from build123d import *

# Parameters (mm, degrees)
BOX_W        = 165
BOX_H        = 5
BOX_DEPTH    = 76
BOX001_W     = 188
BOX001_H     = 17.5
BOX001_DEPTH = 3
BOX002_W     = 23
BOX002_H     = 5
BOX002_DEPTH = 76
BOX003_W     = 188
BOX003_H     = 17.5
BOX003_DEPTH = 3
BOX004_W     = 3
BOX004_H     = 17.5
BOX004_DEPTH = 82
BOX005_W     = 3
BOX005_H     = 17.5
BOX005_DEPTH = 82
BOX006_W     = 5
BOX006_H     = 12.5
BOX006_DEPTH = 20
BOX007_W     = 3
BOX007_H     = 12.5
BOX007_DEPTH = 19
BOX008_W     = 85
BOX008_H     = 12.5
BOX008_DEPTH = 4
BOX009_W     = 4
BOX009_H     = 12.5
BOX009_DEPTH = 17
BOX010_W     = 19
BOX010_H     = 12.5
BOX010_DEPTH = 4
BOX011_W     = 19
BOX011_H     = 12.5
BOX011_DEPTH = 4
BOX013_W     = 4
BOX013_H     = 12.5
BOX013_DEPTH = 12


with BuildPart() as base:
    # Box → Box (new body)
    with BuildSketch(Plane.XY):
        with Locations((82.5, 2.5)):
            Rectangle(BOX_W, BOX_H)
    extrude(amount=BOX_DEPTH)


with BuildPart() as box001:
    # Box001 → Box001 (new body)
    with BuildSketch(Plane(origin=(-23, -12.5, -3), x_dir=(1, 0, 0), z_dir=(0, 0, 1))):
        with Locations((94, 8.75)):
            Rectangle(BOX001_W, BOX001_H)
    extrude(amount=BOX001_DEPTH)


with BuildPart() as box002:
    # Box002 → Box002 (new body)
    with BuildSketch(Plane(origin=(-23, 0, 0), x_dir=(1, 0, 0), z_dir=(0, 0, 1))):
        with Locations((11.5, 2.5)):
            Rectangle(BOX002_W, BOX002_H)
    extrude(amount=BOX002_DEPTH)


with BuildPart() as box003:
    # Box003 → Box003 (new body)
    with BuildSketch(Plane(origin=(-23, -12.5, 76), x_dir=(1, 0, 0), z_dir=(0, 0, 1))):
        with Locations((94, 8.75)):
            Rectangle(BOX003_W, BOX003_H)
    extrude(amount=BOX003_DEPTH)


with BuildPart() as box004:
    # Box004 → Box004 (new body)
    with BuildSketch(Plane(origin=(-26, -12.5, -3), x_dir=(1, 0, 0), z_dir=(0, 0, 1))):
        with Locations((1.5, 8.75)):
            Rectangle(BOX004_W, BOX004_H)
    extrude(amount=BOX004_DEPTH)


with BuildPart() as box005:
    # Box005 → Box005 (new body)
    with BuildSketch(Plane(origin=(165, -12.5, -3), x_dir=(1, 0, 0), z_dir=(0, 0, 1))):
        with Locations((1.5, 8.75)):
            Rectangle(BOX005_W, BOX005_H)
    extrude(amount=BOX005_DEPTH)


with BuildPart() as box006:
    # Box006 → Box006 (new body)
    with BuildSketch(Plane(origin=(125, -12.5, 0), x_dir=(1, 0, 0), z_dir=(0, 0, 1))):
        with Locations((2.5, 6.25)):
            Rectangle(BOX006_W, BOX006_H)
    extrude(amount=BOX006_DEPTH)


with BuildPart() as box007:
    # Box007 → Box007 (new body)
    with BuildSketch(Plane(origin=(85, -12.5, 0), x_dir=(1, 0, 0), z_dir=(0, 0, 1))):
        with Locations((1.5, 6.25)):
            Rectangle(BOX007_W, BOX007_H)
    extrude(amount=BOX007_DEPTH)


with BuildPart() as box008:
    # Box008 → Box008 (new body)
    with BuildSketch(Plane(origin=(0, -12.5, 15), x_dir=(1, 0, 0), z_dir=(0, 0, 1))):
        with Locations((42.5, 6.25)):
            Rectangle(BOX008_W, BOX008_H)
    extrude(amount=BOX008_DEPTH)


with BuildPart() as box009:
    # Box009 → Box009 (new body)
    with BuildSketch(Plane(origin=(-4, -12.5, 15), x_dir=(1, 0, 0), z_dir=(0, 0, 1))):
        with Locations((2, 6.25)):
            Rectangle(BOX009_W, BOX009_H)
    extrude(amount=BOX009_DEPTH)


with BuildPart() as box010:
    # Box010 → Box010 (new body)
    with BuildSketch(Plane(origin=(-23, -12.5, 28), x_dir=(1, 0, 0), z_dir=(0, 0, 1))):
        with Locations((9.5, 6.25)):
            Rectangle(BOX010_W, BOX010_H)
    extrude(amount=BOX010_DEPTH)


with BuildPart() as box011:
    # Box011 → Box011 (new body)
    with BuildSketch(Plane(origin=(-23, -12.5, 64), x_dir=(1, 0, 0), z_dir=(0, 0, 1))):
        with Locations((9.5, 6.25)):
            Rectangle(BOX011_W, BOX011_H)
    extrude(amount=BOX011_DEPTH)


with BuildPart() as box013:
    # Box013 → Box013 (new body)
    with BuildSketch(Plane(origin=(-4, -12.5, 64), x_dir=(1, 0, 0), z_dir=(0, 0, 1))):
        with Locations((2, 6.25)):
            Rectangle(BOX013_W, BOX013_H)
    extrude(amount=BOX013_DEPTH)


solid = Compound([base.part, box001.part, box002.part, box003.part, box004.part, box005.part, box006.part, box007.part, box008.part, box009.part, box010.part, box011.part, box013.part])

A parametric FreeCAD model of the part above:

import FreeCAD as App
import Part
import Sketcher

V = App.Vector

doc = App.newDocument("Part")
body = doc.addObject("PartDesign::Body", "Body")

sketch1 = body.newObject("Sketcher::SketchObject", "Sketch")
sketch1.AttachmentSupport = (doc.getObject("XY_Plane"), [""])
sketch1.MapMode = "FlatFace"
sketch1.addGeometry([
    Part.LineSegment(V(0, 5, 0), V(0, 0, 0)),
    Part.LineSegment(V(0, 0, 0), V(165, 0, 0)),
    Part.LineSegment(V(165, 0, 0), V(165, 5, 0)),
    Part.LineSegment(V(165, 5, 0), V(0, 5, 0)),
], False)
sketch1.addConstraint([
    Sketcher.Constraint("Coincident", 0, 2, 1, 1),
    Sketcher.Constraint("Coincident", 1, 2, 2, 1),
    Sketcher.Constraint("Coincident", 2, 2, 3, 1),
    Sketcher.Constraint("Coincident", 3, 2, 0, 1),
    Sketcher.Constraint("Vertical", 0),
    Sketcher.Constraint("Horizontal", 1),
    Sketcher.Constraint("Vertical", 2),
    Sketcher.Constraint("Horizontal", 3),
    Sketcher.Constraint("Coincident", 0, 2, -1, 1),
    Sketcher.Constraint("DistanceX", 1, 1, 1, 2, 165.0),
    Sketcher.Constraint("DistanceY", 0, 2, 0, 1, 5.0),
])
pad1 = body.newObject("PartDesign::Pad", "Pad")
pad1.Profile = sketch1
pad1.Length = 76
body2 = doc.addObject("PartDesign::Body", "Body001")

sketch2 = body2.newObject("Sketcher::SketchObject", "Sketch001")
sketch2.AttachmentSupport = (doc.getObject("XY_Plane001"), [""])
sketch2.MapMode = "FlatFace"
sketch2.AttachmentOffset = App.Placement(V(0, 0, -3), App.Rotation())
sketch2.addGeometry([
    Part.LineSegment(V(-23, 5, 0), V(-23, -12, 0)),
    Part.LineSegment(V(-23, -12, 0), V(165, -12, 0)),
    Part.LineSegment(V(165, -12, 0), V(165, 5, 0)),
    Part.LineSegment(V(165, 5, 0), V(-23, 5, 0)),
], False)
sketch2.addConstraint([
    Sketcher.Constraint("Coincident", 0, 2, 1, 1),
    Sketcher.Constraint("Coincident", 1, 2, 2, 1),
    Sketcher.Constraint("Coincident", 2, 2, 3, 1),
    Sketcher.Constraint("Coincident", 3, 2, 0, 1),
    Sketcher.Constraint("Vertical", 0),
    Sketcher.Constraint("Horizontal", 1),
    Sketcher.Constraint("Vertical", 2),
    Sketcher.Constraint("Horizontal", 3),
    Sketcher.Constraint("DistanceX", 1, 1, 1, 2, 188.0),
    Sketcher.Constraint("DistanceY", 0, 2, 0, 1, 17.5),
    Sketcher.Constraint("DistanceX", 0, 2, -1, 1, 23.0),
    Sketcher.Constraint("DistanceY", -1, 1, 2, 2, 5.0),
])
pad2 = body2.newObject("PartDesign::Pad", "Pad001")
pad2.Profile = sketch2
pad2.Length = 3
body3 = doc.addObject("PartDesign::Body", "Body002")

sketch3 = body3.newObject("Sketcher::SketchObject", "Sketch002")
sketch3.AttachmentSupport = (doc.getObject("XY_Plane002"), [""])
sketch3.MapMode = "FlatFace"
sketch3.addGeometry([
    Part.LineSegment(V(-23, 5, 0), V(-23, 0, 0)),
    Part.LineSegment(V(-23, 0, 0), V(0, 0, 0)),
    Part.LineSegment(V(0, 0, 0), V(0, 5, 0)),
    Part.LineSegment(V(0, 5, 0), V(-23, 5, 0)),
], False)
sketch3.addConstraint([
    Sketcher.Constraint("Coincident", 0, 2, 1, 1),
    Sketcher.Constraint("Coincident", 1, 2, 2, 1),
    Sketcher.Constraint("Coincident", 2, 2, 3, 1),
    Sketcher.Constraint("Coincident", 3, 2, 0, 1),
    Sketcher.Constraint("Vertical", 0),
    Sketcher.Constraint("Horizontal", 1),
    Sketcher.Constraint("Vertical", 2),
    Sketcher.Constraint("Horizontal", 3),
    Sketcher.Constraint("Coincident", 1, 2, -1, 1),
    Sketcher.Constraint("DistanceX", 1, 1, 1, 2, 23.0),
    Sketcher.Constraint("DistanceY", 0, 2, 0, 1, 5.0),
])
pad3 = body3.newObject("PartDesign::Pad", "Pad002")
pad3.Profile = sketch3
pad3.Length = 76
body4 = doc.addObject("PartDesign::Body", "Body003")

sketch4 = body4.newObject("Sketcher::SketchObject", "Sketch003")
sketch4.AttachmentSupport = (doc.getObject("XY_Plane003"), [""])
sketch4.MapMode = "FlatFace"
sketch4.AttachmentOffset = App.Placement(V(0, 0, 76), App.Rotation())
sketch4.addGeometry([
    Part.LineSegment(V(-23, 5, 0), V(-23, -12, 0)),
    Part.LineSegment(V(-23, -12, 0), V(165, -12, 0)),
    Part.LineSegment(V(165, -12, 0), V(165, 5, 0)),
    Part.LineSegment(V(165, 5, 0), V(-23, 5, 0)),
], False)
sketch4.addConstraint([
    Sketcher.Constraint("Coincident", 0, 2, 1, 1),
    Sketcher.Constraint("Coincident", 1, 2, 2, 1),
    Sketcher.Constraint("Coincident", 2, 2, 3, 1),
    Sketcher.Constraint("Coincident", 3, 2, 0, 1),
    Sketcher.Constraint("Vertical", 0),
    Sketcher.Constraint("Horizontal", 1),
    Sketcher.Constraint("Vertical", 2),
    Sketcher.Constraint("Horizontal", 3),
    Sketcher.Constraint("DistanceX", 1, 1, 1, 2, 188.0),
    Sketcher.Constraint("DistanceY", 0, 2, 0, 1, 17.5),
    Sketcher.Constraint("DistanceX", 0, 2, -1, 1, 23.0),
    Sketcher.Constraint("DistanceY", -1, 1, 2, 2, 5.0),
])
pad4 = body4.newObject("PartDesign::Pad", "Pad003")
pad4.Profile = sketch4
pad4.Length = 3
body5 = doc.addObject("PartDesign::Body", "Body004")

sketch5 = body5.newObject("Sketcher::SketchObject", "Sketch004")
sketch5.AttachmentSupport = (doc.getObject("XY_Plane004"), [""])
sketch5.MapMode = "FlatFace"
sketch5.AttachmentOffset = App.Placement(V(0, 0, -3), App.Rotation())
sketch5.addGeometry([
    Part.LineSegment(V(-26, 5, 0), V(-26, -12.5, 0)),
    Part.LineSegment(V(-26, -12.5, 0), V(-23, -12.5, 0)),
    Part.LineSegment(V(-23, -12.5, 0), V(-23, 5, 0)),
    Part.LineSegment(V(-23, 5, 0), V(-26, 5, 0)),
], False)
sketch5.addConstraint([
    Sketcher.Constraint("Coincident", 0, 2, 1, 1),
    Sketcher.Constraint("Coincident", 1, 2, 2, 1),
    Sketcher.Constraint("Coincident", 2, 2, 3, 1),
    Sketcher.Constraint("Coincident", 3, 2, 0, 1),
    Sketcher.Constraint("Vertical", 0),
    Sketcher.Constraint("Horizontal", 1),
    Sketcher.Constraint("Vertical", 2),
    Sketcher.Constraint("Horizontal", 3),
    Sketcher.Constraint("DistanceX", 1, 1, 1, 2, 3.0),
    Sketcher.Constraint("DistanceY", 0, 2, 0, 1, 17.5),
    Sketcher.Constraint("DistanceX", 0, 2, -1, 1, 26.0),
    Sketcher.Constraint("DistanceY", -1, 1, 2, 2, 5.0),
])
pad5 = body5.newObject("PartDesign::Pad", "Pad004")
pad5.Profile = sketch5
pad5.Length = 82
body6 = doc.addObject("PartDesign::Body", "Body005")

sketch6 = body6.newObject("Sketcher::SketchObject", "Sketch005")
sketch6.AttachmentSupport = (doc.getObject("XY_Plane005"), [""])
sketch6.MapMode = "FlatFace"
sketch6.AttachmentOffset = App.Placement(V(0, 0, -3), App.Rotation())
sketch6.addGeometry([
    Part.LineSegment(V(165, 5, 0), V(165, -12.5, 0)),
    Part.LineSegment(V(165, -12.5, 0), V(168, -12.5, 0)),
    Part.LineSegment(V(168, -12.5, 0), V(168, 5, 0)),
    Part.LineSegment(V(168, 5, 0), V(165, 5, 0)),
], False)
sketch6.addConstraint([
    Sketcher.Constraint("Coincident", 0, 2, 1, 1),
    Sketcher.Constraint("Coincident", 1, 2, 2, 1),
    Sketcher.Constraint("Coincident", 2, 2, 3, 1),
    Sketcher.Constraint("Coincident", 3, 2, 0, 1),
    Sketcher.Constraint("Vertical", 0),
    Sketcher.Constraint("Horizontal", 1),
    Sketcher.Constraint("Vertical", 2),
    Sketcher.Constraint("Horizontal", 3),
    Sketcher.Constraint("DistanceX", 1, 1, 1, 2, 3.0),
    Sketcher.Constraint("DistanceY", 0, 2, 0, 1, 17.5),
    Sketcher.Constraint("DistanceX", -1, 1, 0, 2, 165.0),
    Sketcher.Constraint("DistanceY", -1, 1, 2, 2, 5.0),
])
pad6 = body6.newObject("PartDesign::Pad", "Pad005")
pad6.Profile = sketch6
pad6.Length = 82
body7 = doc.addObject("PartDesign::Body", "Body006")

sketch7 = body7.newObject("Sketcher::SketchObject", "Sketch006")
sketch7.AttachmentSupport = (doc.getObject("XY_Plane006"), [""])
sketch7.MapMode = "FlatFace"
sketch7.addGeometry([
    Part.LineSegment(V(125, 0, 0), V(125, -12, 0)),
    Part.LineSegment(V(125, -12, 0), V(130, -12, 0)),
    Part.LineSegment(V(130, -12, 0), V(130, 0, 0)),
    Part.LineSegment(V(130, 0, 0), V(125, 0, 0)),
], False)
sketch7.addConstraint([
    Sketcher.Constraint("Coincident", 0, 2, 1, 1),
    Sketcher.Constraint("Coincident", 1, 2, 2, 1),
    Sketcher.Constraint("Coincident", 2, 2, 3, 1),
    Sketcher.Constraint("Coincident", 3, 2, 0, 1),
    Sketcher.Constraint("Vertical", 0),
    Sketcher.Constraint("Horizontal", 1),
    Sketcher.Constraint("Vertical", 2),
    Sketcher.Constraint("Horizontal", 3),
    Sketcher.Constraint("PointOnObject", 2, 2, -1),
    Sketcher.Constraint("DistanceX", 1, 1, 1, 2, 5.0),
    Sketcher.Constraint("DistanceY", 0, 2, 0, 1, 12.5),
    Sketcher.Constraint("DistanceX", -1, 1, 0, 2, 125.0),
])
pad7 = body7.newObject("PartDesign::Pad", "Pad006")
pad7.Profile = sketch7
pad7.Length = 20
body8 = doc.addObject("PartDesign::Body", "Body007")

sketch8 = body8.newObject("Sketcher::SketchObject", "Sketch007")
sketch8.AttachmentSupport = (doc.getObject("XY_Plane007"), [""])
sketch8.MapMode = "FlatFace"
sketch8.addGeometry([
    Part.LineSegment(V(85, 0, 0), V(85, -12.5, 0)),
    Part.LineSegment(V(85, -12.5, 0), V(88, -12.5, 0)),
    Part.LineSegment(V(88, -12.5, 0), V(88, 0, 0)),
    Part.LineSegment(V(88, 0, 0), V(85, 0, 0)),
], False)
sketch8.addConstraint([
    Sketcher.Constraint("Coincident", 0, 2, 1, 1),
    Sketcher.Constraint("Coincident", 1, 2, 2, 1),
    Sketcher.Constraint("Coincident", 2, 2, 3, 1),
    Sketcher.Constraint("Coincident", 3, 2, 0, 1),
    Sketcher.Constraint("Vertical", 0),
    Sketcher.Constraint("Horizontal", 1),
    Sketcher.Constraint("Vertical", 2),
    Sketcher.Constraint("Horizontal", 3),
    Sketcher.Constraint("PointOnObject", 2, 2, -1),
    Sketcher.Constraint("DistanceX", 1, 1, 1, 2, 3.0),
    Sketcher.Constraint("DistanceY", 0, 2, 0, 1, 12.5),
    Sketcher.Constraint("DistanceX", -1, 1, 0, 2, 85.0),
])
pad8 = body8.newObject("PartDesign::Pad", "Pad007")
pad8.Profile = sketch8
pad8.Length = 19
body9 = doc.addObject("PartDesign::Body", "Body008")

sketch9 = body9.newObject("Sketcher::SketchObject", "Sketch008")
sketch9.AttachmentSupport = (doc.getObject("XY_Plane008"), [""])
sketch9.MapMode = "FlatFace"
sketch9.AttachmentOffset = App.Placement(V(0, 0, 15), App.Rotation())
sketch9.addGeometry([
    Part.LineSegment(V(0, 0, 0), V(0, -12, 0)),
    Part.LineSegment(V(0, -12, 0), V(85, -12, 0)),
    Part.LineSegment(V(85, -12, 0), V(85, 0, 0)),
    Part.LineSegment(V(85, 0, 0), V(0, 0, 0)),
], False)
sketch9.addConstraint([
    Sketcher.Constraint("Coincident", 0, 2, 1, 1),
    Sketcher.Constraint("Coincident", 1, 2, 2, 1),
    Sketcher.Constraint("Coincident", 2, 2, 3, 1),
    Sketcher.Constraint("Coincident", 3, 2, 0, 1),
    Sketcher.Constraint("Vertical", 0),
    Sketcher.Constraint("Horizontal", 1),
    Sketcher.Constraint("Vertical", 2),
    Sketcher.Constraint("Horizontal", 3),
    Sketcher.Constraint("Coincident", 3, 2, -1, 1),
    Sketcher.Constraint("DistanceX", 1, 1, 1, 2, 85.0),
    Sketcher.Constraint("DistanceY", 0, 2, 0, 1, 12.5),
])
pad9 = body9.newObject("PartDesign::Pad", "Pad008")
pad9.Profile = sketch9
pad9.Length = 4
body10 = doc.addObject("PartDesign::Body", "Body009")

sketch10 = body10.newObject("Sketcher::SketchObject", "Sketch009")
sketch10.AttachmentSupport = (doc.getObject("XY_Plane009"), [""])
sketch10.MapMode = "FlatFace"
sketch10.AttachmentOffset = App.Placement(V(0, 0, 15), App.Rotation())
sketch10.addGeometry([
    Part.LineSegment(V(-4, 0, 0), V(-4, -12.5, 0)),
    Part.LineSegment(V(-4, -12.5, 0), V(0, -12.5, 0)),
    Part.LineSegment(V(0, -12.5, 0), V(0, 0, 0)),
    Part.LineSegment(V(0, 0, 0), V(-4, 0, 0)),
], False)
sketch10.addConstraint([
    Sketcher.Constraint("Coincident", 0, 2, 1, 1),
    Sketcher.Constraint("Coincident", 1, 2, 2, 1),
    Sketcher.Constraint("Coincident", 2, 2, 3, 1),
    Sketcher.Constraint("Coincident", 3, 2, 0, 1),
    Sketcher.Constraint("Vertical", 0),
    Sketcher.Constraint("Horizontal", 1),
    Sketcher.Constraint("Vertical", 2),
    Sketcher.Constraint("Horizontal", 3),
    Sketcher.Constraint("Coincident", 2, 2, -1, 1),
    Sketcher.Constraint("DistanceX", 1, 1, 1, 2, 4.0),
    Sketcher.Constraint("DistanceY", 0, 2, 0, 1, 12.5),
])
pad10 = body10.newObject("PartDesign::Pad", "Pad009")
pad10.Profile = sketch10
pad10.Length = 17
body11 = doc.addObject("PartDesign::Body", "Body010")

sketch11 = body11.newObject("Sketcher::SketchObject", "Sketch010")
sketch11.AttachmentSupport = (doc.getObject("XY_Plane010"), [""])
sketch11.MapMode = "FlatFace"
sketch11.AttachmentOffset = App.Placement(V(0, 0, 28), App.Rotation())
sketch11.addGeometry([
    Part.LineSegment(V(-23, 0, 0), V(-23, -12, 0)),
    Part.LineSegment(V(-23, -12, 0), V(-4, -12, 0)),
    Part.LineSegment(V(-4, -12, 0), V(-4, 0, 0)),
    Part.LineSegment(V(-4, 0, 0), V(-23, 0, 0)),
], False)
sketch11.addConstraint([
    Sketcher.Constraint("Coincident", 0, 2, 1, 1),
    Sketcher.Constraint("Coincident", 1, 2, 2, 1),
    Sketcher.Constraint("Coincident", 2, 2, 3, 1),
    Sketcher.Constraint("Coincident", 3, 2, 0, 1),
    Sketcher.Constraint("Vertical", 0),
    Sketcher.Constraint("Horizontal", 1),
    Sketcher.Constraint("Vertical", 2),
    Sketcher.Constraint("Horizontal", 3),
    Sketcher.Constraint("PointOnObject", 2, 2, -1),
    Sketcher.Constraint("DistanceX", 1, 1, 1, 2, 19.0),
    Sketcher.Constraint("DistanceY", 0, 2, 0, 1, 12.5),
    Sketcher.Constraint("DistanceX", 0, 2, -1, 1, 23.0),
])
pad11 = body11.newObject("PartDesign::Pad", "Pad010")
pad11.Profile = sketch11
pad11.Length = 4
body12 = doc.addObject("PartDesign::Body", "Body011")

sketch12 = body12.newObject("Sketcher::SketchObject", "Sketch011")
sketch12.AttachmentSupport = (doc.getObject("XY_Plane011"), [""])
sketch12.MapMode = "FlatFace"
sketch12.AttachmentOffset = App.Placement(V(0, 0, 64), App.Rotation())
sketch12.addGeometry([
    Part.LineSegment(V(-23, 0, 0), V(-23, -12, 0)),
    Part.LineSegment(V(-23, -12, 0), V(-4, -12, 0)),
    Part.LineSegment(V(-4, -12, 0), V(-4, 0, 0)),
    Part.LineSegment(V(-4, 0, 0), V(-23, 0, 0)),
], False)
sketch12.addConstraint([
    Sketcher.Constraint("Coincident", 0, 2, 1, 1),
    Sketcher.Constraint("Coincident", 1, 2, 2, 1),
    Sketcher.Constraint("Coincident", 2, 2, 3, 1),
    Sketcher.Constraint("Coincident", 3, 2, 0, 1),
    Sketcher.Constraint("Vertical", 0),
    Sketcher.Constraint("Horizontal", 1),
    Sketcher.Constraint("Vertical", 2),
    Sketcher.Constraint("Horizontal", 3),
    Sketcher.Constraint("PointOnObject", 2, 2, -1),
    Sketcher.Constraint("DistanceX", 1, 1, 1, 2, 19.0),
    Sketcher.Constraint("DistanceY", 0, 2, 0, 1, 12.5),
    Sketcher.Constraint("DistanceX", 0, 2, -1, 1, 23.0),
])
pad12 = body12.newObject("PartDesign::Pad", "Pad011")
pad12.Profile = sketch12
pad12.Length = 4
body13 = doc.addObject("PartDesign::Body", "Body012")

sketch13 = body13.newObject("Sketcher::SketchObject", "Sketch012")
sketch13.AttachmentSupport = (doc.getObject("XY_Plane012"), [""])
sketch13.MapMode = "FlatFace"
sketch13.AttachmentOffset = App.Placement(V(0, 0, 64), App.Rotation())
sketch13.addGeometry([
    Part.LineSegment(V(-4, 0, 0), V(-4, -12.5, 0)),
    Part.LineSegment(V(-4, -12.5, 0), V(0, -12.5, 0)),
    Part.LineSegment(V(0, -12.5, 0), V(0, 0, 0)),
    Part.LineSegment(V(0, 0, 0), V(-4, 0, 0)),
], False)
sketch13.addConstraint([
    Sketcher.Constraint("Coincident", 0, 2, 1, 1),
    Sketcher.Constraint("Coincident", 1, 2, 2, 1),
    Sketcher.Constraint("Coincident", 2, 2, 3, 1),
    Sketcher.Constraint("Coincident", 3, 2, 0, 1),
    Sketcher.Constraint("Vertical", 0),
    Sketcher.Constraint("Horizontal", 1),
    Sketcher.Constraint("Vertical", 2),
    Sketcher.Constraint("Horizontal", 3),
    Sketcher.Constraint("Coincident", 2, 2, -1, 1),
    Sketcher.Constraint("DistanceX", 1, 1, 1, 2, 4.0),
    Sketcher.Constraint("DistanceY", 0, 2, 0, 1, 12.5),
])
pad13 = body13.newObject("PartDesign::Pad", "Pad012")
pad13.Profile = sketch13
pad13.Length = 12

doc.recompute()
